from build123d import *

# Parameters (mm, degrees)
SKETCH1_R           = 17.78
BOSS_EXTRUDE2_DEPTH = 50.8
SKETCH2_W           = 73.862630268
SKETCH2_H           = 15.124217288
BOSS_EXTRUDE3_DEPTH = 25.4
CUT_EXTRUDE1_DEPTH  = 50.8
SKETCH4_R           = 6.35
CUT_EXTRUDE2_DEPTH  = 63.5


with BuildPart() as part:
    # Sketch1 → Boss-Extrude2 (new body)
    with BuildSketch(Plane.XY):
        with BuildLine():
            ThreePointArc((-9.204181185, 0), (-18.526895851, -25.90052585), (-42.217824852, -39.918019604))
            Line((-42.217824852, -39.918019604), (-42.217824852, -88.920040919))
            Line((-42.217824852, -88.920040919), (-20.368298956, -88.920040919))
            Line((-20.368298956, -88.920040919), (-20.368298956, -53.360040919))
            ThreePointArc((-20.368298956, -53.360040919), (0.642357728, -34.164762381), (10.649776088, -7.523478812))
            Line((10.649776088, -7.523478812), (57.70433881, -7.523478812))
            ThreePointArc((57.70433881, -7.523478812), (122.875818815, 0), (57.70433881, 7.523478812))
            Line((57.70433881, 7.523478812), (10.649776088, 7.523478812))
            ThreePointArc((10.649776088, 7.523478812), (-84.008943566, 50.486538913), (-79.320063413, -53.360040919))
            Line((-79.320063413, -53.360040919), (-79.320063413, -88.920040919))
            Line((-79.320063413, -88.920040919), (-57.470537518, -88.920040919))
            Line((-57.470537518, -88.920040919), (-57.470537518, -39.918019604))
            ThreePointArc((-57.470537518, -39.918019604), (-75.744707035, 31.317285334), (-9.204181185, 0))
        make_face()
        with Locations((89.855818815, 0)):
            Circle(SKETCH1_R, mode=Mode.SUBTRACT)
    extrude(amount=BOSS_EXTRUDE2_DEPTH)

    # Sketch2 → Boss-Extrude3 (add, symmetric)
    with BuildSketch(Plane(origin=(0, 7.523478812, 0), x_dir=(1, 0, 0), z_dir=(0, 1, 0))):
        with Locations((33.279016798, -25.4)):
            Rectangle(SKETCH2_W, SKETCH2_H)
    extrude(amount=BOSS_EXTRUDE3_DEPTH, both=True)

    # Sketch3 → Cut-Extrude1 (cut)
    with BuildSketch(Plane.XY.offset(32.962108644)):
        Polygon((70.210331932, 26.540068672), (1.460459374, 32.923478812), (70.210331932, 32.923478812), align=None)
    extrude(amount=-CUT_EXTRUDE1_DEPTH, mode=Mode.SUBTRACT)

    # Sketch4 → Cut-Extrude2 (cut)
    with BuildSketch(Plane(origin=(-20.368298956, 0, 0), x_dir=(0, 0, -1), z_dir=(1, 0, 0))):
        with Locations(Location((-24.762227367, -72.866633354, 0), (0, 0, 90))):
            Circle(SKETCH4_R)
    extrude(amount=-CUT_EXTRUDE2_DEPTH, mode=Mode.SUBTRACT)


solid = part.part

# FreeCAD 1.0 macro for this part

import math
import FreeCAD as App
import Part
import Sketcher

V = App.Vector
Q = App.Units.Quantity

doc = App.newDocument("Part")
params = doc.addObject("Spreadsheet::Sheet", "Params")
for row, (alias, value) in enumerate([
    ("sketch1_diameter", "1.4 in"),
    ("sketch1_radius", "1.6 in"),
    ("sketch1_radius2", "2.4 in"),
    ("sketch1_radius3", "1.3 in"),
    ("sketch1_height", "1.4 in"),
    ("pad1_length", "2 in"),
    ("pad2_length", "2 in"),
    ("pocket1_length", "2 in"),
    ("sketch4_diameter", "0.5 in"),
    ("pocket2_length", "2.5 in"),
], start=1):
    params.set(f"A{row}", alias)
    params.set(f"B{row}", "=" + value)
    params.setAlias(f"B{row}", alias)

body = doc.addObject("PartDesign::Body", "Body")

# Sketch on XY plane
sketch1 = body.newObject("Sketcher::SketchObject", "Sketch")
sketch1.AttachmentSupport = (doc.getObject("XY_Plane"), [""])
sketch1.MapMode = "FlatFace"
sketch1.addGeometry([
    Part.ArcOfCircle(Part.Circle(V(-50, 0, 0), V(0, 0, 1), 41), math.radians(-79), math.radians(0)),  # 0
    Part.LineSegment(V(-42, -40, 0), V(-42, -89, 0)),  # 1
    Part.LineSegment(V(-42, -89, 0), V(-20, -89, 0)),  # 2
    Part.LineSegment(V(-20, -89, 0), V(-20, -53, 0)),  # 3
    Part.ArcOfCircle(Part.Circle(V(-50, 0, 0), V(0, 0, 1), 61), math.radians(-61), math.radians(-7)),  # 4
    Part.LineSegment(V(11, -8, 0), V(58, -8, 0)),  # 5
    Part.ArcOfCircle(Part.Circle(V(90, 0, 0), V(0, 0, 1), 33), math.radians(-167), math.radians(167)),  # 6
    Part.LineSegment(V(58, 8, 0), V(11, 8, 0)),  # 7
    Part.ArcOfCircle(Part.Circle(V(-50, 0, 0), V(0, 0, 1), 61), math.radians(7), math.radians(241)),  # 8
    Part.LineSegment(V(-79, -53, 0), V(-79, -89, 0)),  # 9
    Part.LineSegment(V(-79, -89, 0), V(-57, -89, 0)),  # 10
    Part.LineSegment(V(-57, -89, 0), V(-57, -40, 0)),  # 11
    Part.ArcOfCircle(Part.Circle(V(-50, 0, 0), V(0, 0, 1), 41), math.radians(0), math.radians(259)),  # 12
    Part.Circle(V(90, 0, 0), V(0, 0, 1), 18),  # 13
], False)
sketch1.addConstraint([
    Sketcher.Constraint("Coincident", 0, 1, 1, 1),
    Sketcher.Constraint("Coincident", 1, 2, 2, 1),
    Sketcher.Constraint("Coincident", 2, 2, 3, 1),
    Sketcher.Constraint("Coincident", 3, 2, 4, 1),
    Sketcher.Constraint("Coincident", 4, 2, 5, 1),
    Sketcher.Constraint("Coincident", 5, 2, 6, 1),
    Sketcher.Constraint("Coincident", 6, 2, 7, 1),
    Sketcher.Constraint("Coincident", 7, 2, 8, 1),
    Sketcher.Constraint("Coincident", 8, 2, 9, 1),
    Sketcher.Constraint("Coincident", 9, 2, 10, 1),
    Sketcher.Constraint("Coincident", 10, 2, 11, 1),
    Sketcher.Constraint("Coincident", 11, 2, 12, 2),
    Sketcher.Constraint("Tangent", 12, 1, 0, 2),
    Sketcher.Constraint("Vertical", 1),
    Sketcher.Constraint("Horizontal", 2),
    Sketcher.Constraint("Vertical", 3),
    Sketcher.Constraint("Horizontal", 5),
    Sketcher.Constraint("Horizontal", 7),
    Sketcher.Constraint("Vertical", 9),
    Sketcher.Constraint("Horizontal", 10),
    Sketcher.Constraint("Vertical", 11),
    Sketcher.Constraint("Coincident", 4, 3, 0, 3),
    Sketcher.Constraint("Coincident", 8, 3, 0, 3),
    Sketcher.Constraint("Coincident", 13, 3, 6, 3),
    Sketcher.Constraint("Equal", 4, 8),
    Sketcher.Constraint("Equal", 0, 12),
    Sketcher.Constraint("Symmetric", 5, 2, 6, 2, -1),
    Sketcher.Constraint("PointOnObject", 0, 3, -1),
    Sketcher.Constraint("PointOnObject", 12, 1, -1),
    Sketcher.Constraint("Horizontal", 3, 2, 8, 2),
    Sketcher.Constraint("Horizontal", 2, 2, 9, 2),
    Sketcher.Constraint("Horizontal", 0, 1, 11, 2),
    Sketcher.Constraint("Diameter", 13, Q("1.4 in")),
    Sketcher.Constraint("Radius", 0, Q("1.6 in")),
    Sketcher.Constraint("Radius", 4, Q("2.4 in")),
    Sketcher.Constraint("Radius", 6, Q("1.3 in")),
    Sketcher.Constraint("DistanceY", 3, 1, 3, 2, Q("1.4 in")),
    Sketcher.Constraint("DistanceX", 0, 3, 6, 3, Q("5.5 in")),
    Sketcher.Constraint("DistanceY", 4, 2, -1, 1, Q("0.2962 in")),
    Sketcher.Constraint("DistanceY", 1, 2, 1, 1, Q("49.002021 mm")),
    Sketcher.Constraint("DistanceX", 2, 2, -1, 1, Q("20.368299 mm")),
    Sketcher.Constraint("DistanceX", 2, 1, 2, 2, Q("21.849526 mm")),
])
sketch1.setExpression("Constraints[32]", "Params.sketch1_diameter")
sketch1.setExpression("Constraints[33]", "Params.sketch1_radius")
sketch1.setExpression("Constraints[34]", "Params.sketch1_radius2")
sketch1.setExpression("Constraints[35]", "Params.sketch1_radius3")
sketch1.setExpression("Constraints[36]", "Params.sketch1_height")
pad1 = body.newObject("PartDesign::Pad", "Pad")
pad1.Profile = sketch1
pad1.setExpression("Length", "Params.pad1_length")

# Sketch on XZ plane
sketch2 = body.newObject("Sketcher::SketchObject", "Sketch001")
sketch2.AttachmentSupport = (doc.getObject("XZ_Plane"), [""])
sketch2.MapMode = "FlatFace"
sketch2.AttachmentOffset = App.Placement(V(0, 0, -0.2962 * 25.4), App.Rotation())
sketch2.addGeometry([
    Part.LineSegment(V(-4, 18, 0), V(-4, 33, 0)),
    Part.LineSegment(V(-4, 33, 0), V(70, 33, 0)),
    Part.LineSegment(V(70, 33, 0), V(70, 18, 0)),
    Part.LineSegment(V(70, 18, 0), V(-4, 18, 0)),
], False)
sketch2.addConstraint([
    Sketcher.Constraint("Coincident", 0, 2, 1, 1),
    Sketcher.Constraint("Coincident", 1, 2, 2, 1),
    Sketcher.Constraint("Coincident", 2, 2, 3, 1),
    Sketcher.Constraint("Coincident", 3, 2, 0, 1),
    Sketcher.Constraint("Vertical", 0),
    Sketcher.Constraint("Horizontal", 1),
    Sketcher.Constraint("Vertical", 2),
    Sketcher.Constraint("Horizontal", 3),
    Sketcher.Constraint("DistanceX", 1, 1, 1, 2, Q("73.86263 mm")),
    Sketcher.Constraint("DistanceX", 0, 2, -1, 1, Q("3.652298 mm")),
    Sketcher.Constraint("DistanceY", 0, 1, 0, 2, Q("15.124217 mm")),
    Sketcher.Constraint("DistanceY", -1, 1, 0, 2, Q("32.962109 mm")),
])
pad2 = body.newObject("PartDesign::Pad", "Pad001")
pad2.Profile = sketch2
pad2.setExpression("Length", "Params.pad2_length")
pad2.Midplane = True

# Sketch on XY plane
sketch3 = body.newObject("Sketcher::SketchObject", "Sketch002")
sketch3.AttachmentSupport = (doc.getObject("XY_Plane"), [""])
sketch3.MapMode = "FlatFace"
sketch3.AttachmentOffset = App.Placement(V(0, 0, 32.962109), App.Rotation())
sketch3.addGeometry([
    Part.LineSegment(V(1, 33, 0), V(70, 27, 0)),
    Part.LineSegment(V(70, 27, 0), V(70, 33, 0)),
    Part.LineSegment(V(70, 33, 0), V(1, 33, 0)),
], False)
sketch3.addConstraint([
    Sketcher.Constraint("Coincident", 0, 2, 1, 1),
    Sketcher.Constraint("Coincident", 1, 2, 2, 1),
    Sketcher.Constraint("Coincident", 2, 2, 0, 1),
    Sketcher.Constraint("Vertical", 1),
    Sketcher.Constraint("Horizontal", 2),
    Sketcher.Constraint("DistanceY", -1, 1, 1, 2, Q("1.2962 in")),
    Sketcher.Constraint("DistanceY", 1, 1, 1, 2, Q("6.38341 mm")),
    Sketcher.Constraint("DistanceX", 2, 2, 2, 1, Q("68.749873 mm")),
    Sketcher.Constraint("DistanceX", -1, 1, 0, 2, Q("70.210332 mm")),
])
pocket1 = body.newObject("PartDesign::Pocket", "Pocket")
pocket1.Profile = sketch3
pocket1.setExpression("Length", "Params.pocket1_length")

# Sketch on YZ plane
sketch4 = body.newObject("Sketcher::SketchObject", "Sketch003")
sketch4.AttachmentSupport = (doc.getObject("YZ_Plane"), [""])
sketch4.MapMode = "FlatFace"
sketch4.AttachmentOffset = App.Placement(V(0, 0, -20.368299), App.Rotation())
sketch4.addGeometry(Part.Circle(V(-73, 25, 0), V(0, 0, 1), 6), False)
sketch4.addConstraint([
    Sketcher.Constraint("Diameter", 0, Q("0.5 in")),
    Sketcher.Constraint("DistanceX", 0, 3, -1, 1, Q("72.866633 mm")),
    Sketcher.Constraint("DistanceY", -1, 1, 0, 3, Q("24.762227 mm")),
])
sketch4.setExpression("Constraints[0]", "Params.sketch4_diameter")
pocket2 = body.newObject("PartDesign::Pocket", "Pocket001")
pocket2.Profile = sketch4
pocket2.setExpression("Length", "Params.pocket2_length")

doc.recompute()
